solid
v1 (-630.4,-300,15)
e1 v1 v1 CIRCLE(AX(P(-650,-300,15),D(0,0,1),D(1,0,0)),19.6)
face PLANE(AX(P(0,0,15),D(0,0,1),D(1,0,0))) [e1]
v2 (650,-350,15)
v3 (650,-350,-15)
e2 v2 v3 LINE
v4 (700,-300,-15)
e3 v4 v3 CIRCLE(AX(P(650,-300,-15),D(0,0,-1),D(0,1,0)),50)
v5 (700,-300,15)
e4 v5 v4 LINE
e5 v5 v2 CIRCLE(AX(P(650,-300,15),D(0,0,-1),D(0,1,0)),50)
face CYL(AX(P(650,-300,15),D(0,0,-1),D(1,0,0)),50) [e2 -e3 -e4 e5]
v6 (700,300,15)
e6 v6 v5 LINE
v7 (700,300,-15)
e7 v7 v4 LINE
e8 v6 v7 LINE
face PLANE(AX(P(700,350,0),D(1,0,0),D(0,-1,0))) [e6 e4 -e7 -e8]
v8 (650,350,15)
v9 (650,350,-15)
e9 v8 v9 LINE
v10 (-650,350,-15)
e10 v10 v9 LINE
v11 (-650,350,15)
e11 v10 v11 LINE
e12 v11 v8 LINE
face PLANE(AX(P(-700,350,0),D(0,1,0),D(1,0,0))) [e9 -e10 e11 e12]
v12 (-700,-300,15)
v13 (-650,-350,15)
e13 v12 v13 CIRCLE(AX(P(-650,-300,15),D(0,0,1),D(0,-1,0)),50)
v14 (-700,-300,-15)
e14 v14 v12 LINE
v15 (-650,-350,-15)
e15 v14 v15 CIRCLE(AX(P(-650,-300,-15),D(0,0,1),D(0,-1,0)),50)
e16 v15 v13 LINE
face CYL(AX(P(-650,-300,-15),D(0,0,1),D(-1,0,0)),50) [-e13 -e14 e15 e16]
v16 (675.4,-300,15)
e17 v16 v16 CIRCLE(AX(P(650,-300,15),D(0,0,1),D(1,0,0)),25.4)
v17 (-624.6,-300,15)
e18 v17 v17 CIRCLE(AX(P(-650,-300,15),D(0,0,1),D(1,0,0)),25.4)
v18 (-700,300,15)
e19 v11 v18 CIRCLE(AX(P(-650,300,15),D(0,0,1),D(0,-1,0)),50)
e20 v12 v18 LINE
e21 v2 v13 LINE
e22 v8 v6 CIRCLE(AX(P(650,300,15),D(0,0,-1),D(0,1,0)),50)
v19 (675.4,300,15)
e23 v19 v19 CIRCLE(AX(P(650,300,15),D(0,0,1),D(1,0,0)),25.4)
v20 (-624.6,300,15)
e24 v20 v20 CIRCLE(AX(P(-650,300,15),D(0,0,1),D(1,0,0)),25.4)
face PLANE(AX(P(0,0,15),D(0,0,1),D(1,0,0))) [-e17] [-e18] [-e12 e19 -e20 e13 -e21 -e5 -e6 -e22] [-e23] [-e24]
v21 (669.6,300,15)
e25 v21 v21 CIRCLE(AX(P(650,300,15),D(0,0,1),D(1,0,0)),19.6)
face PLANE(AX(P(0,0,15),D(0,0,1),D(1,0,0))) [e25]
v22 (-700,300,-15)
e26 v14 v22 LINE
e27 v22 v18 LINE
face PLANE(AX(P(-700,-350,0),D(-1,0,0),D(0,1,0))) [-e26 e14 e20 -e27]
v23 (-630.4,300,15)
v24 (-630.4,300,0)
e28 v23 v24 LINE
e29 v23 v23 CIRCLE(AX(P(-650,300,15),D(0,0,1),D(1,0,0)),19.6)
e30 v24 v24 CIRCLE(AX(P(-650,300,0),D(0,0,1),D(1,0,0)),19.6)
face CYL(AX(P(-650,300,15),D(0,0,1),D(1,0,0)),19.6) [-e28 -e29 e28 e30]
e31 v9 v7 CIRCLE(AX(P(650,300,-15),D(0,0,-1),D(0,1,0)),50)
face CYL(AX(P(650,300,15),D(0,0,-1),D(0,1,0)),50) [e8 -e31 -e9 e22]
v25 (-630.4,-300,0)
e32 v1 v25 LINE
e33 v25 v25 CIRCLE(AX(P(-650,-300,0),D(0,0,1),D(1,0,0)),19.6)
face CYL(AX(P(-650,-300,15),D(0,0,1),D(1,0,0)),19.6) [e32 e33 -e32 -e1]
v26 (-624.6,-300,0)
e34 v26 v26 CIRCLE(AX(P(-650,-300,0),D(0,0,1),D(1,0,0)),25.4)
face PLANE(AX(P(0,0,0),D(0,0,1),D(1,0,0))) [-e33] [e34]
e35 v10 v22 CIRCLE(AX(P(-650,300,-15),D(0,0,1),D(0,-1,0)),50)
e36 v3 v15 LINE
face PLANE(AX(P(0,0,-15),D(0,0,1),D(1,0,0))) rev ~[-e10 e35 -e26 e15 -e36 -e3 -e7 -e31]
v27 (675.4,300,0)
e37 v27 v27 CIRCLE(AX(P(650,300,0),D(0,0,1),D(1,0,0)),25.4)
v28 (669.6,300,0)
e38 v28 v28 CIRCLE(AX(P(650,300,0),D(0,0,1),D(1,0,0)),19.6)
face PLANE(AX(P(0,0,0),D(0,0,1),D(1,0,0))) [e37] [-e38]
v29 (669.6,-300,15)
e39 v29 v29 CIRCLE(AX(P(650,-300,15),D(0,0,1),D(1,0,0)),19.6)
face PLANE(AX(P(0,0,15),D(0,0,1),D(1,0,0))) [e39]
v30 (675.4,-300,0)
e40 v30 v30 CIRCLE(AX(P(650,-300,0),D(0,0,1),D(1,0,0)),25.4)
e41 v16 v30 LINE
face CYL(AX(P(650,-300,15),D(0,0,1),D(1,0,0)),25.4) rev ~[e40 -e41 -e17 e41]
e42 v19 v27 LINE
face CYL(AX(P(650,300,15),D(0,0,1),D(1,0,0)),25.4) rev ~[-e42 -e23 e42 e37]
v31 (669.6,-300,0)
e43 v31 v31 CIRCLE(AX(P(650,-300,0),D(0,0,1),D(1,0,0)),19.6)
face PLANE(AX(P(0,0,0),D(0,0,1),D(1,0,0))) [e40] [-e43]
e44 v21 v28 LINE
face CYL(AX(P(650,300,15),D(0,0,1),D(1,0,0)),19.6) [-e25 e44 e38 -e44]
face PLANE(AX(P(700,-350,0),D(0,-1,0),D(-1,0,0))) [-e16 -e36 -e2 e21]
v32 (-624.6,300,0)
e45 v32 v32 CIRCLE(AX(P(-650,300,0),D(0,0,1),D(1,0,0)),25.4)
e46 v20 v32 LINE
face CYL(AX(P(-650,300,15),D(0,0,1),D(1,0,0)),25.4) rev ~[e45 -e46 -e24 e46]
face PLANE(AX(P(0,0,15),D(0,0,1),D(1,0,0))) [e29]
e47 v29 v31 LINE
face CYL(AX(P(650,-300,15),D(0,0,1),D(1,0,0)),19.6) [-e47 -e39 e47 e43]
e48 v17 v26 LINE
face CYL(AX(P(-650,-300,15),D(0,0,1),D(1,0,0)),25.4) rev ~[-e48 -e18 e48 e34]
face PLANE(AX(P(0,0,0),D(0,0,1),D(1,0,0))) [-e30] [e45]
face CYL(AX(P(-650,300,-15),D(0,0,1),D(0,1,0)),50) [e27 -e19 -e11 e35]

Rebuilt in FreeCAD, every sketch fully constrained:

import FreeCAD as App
import Part
import Sketcher


def edges_at(feature, points):
    """Names of the edges that pass closest to the given points."""
    edges = feature.Shape.Edges
    near = lambda p: min(range(len(edges)), key=lambda i: edges[i].distToShape(Part.Vertex(*p))[0])
    return sorted({f"Edge{near(p) + 1}" for p in points})

doc = App.newDocument("Part")
body = doc.addObject("PartDesign::Body", "Body")

# Sketch on XY plane
sketch1 = doc.addObject("Sketcher::SketchObject", "Sketch")
body.addObject(sketch1)
sketch1.AttachmentSupport = (doc.XY_Plane, [""])
sketch1.MapMode = "FlatFace"
sketch1.addGeometry(Part.LineSegment(App.Vector(700, 350, 0), App.Vector(-700, 350, 0)), False)
sketch1.addGeometry(Part.LineSegment(App.Vector(-700, 350, 0), App.Vector(-700, -350, 0)), False)
sketch1.addGeometry(Part.LineSegment(App.Vector(-700, -350, 0), App.Vector(700, -350, 0)), False)
sketch1.addGeometry(Part.LineSegment(App.Vector(700, -350, 0), App.Vector(700, 350, 0)), False)
sketch1.addConstraint(Sketcher.Constraint("Coincident", 0, 2, 1, 1))
sketch1.addConstraint(Sketcher.Constraint("Coincident", 1, 2, 2, 1))
sketch1.addConstraint(Sketcher.Constraint("Coincident", 2, 2, 3, 1))
sketch1.addConstraint(Sketcher.Constraint("Coincident", 3, 2, 0, 1))
sketch1.addConstraint(Sketcher.Constraint("Horizontal", 0))
sketch1.addConstraint(Sketcher.Constraint("Vertical", 1))
sketch1.addConstraint(Sketcher.Constraint("Horizontal", 2))
sketch1.addConstraint(Sketcher.Constraint("Vertical", 3))
sketch1.addConstraint(Sketcher.Constraint("Symmetric", 0, 2, 2, 2, -1, 1))
sketch1.addConstraint(Sketcher.Constraint("DistanceX", 0, 2, 0, 1, 1400.0))
sketch1.addConstraint(Sketcher.Constraint("DistanceY", 1, 2, 1, 1, 700.0))
pad1 = doc.addObject("PartDesign::Pad", "Pad")
body.addObject(pad1)
pad1.Profile = sketch1
pad1.Length = 30
pad1.Midplane = True
doc.recompute()

fillet = doc.addObject("PartDesign::Fillet", "Fillet")
body.addObject(fillet)
fillet.Base = (pad1, edges_at(pad1, [
    (700, 350, 0),
    (-700, 350, 0),
    (700, -350, 0),
    (-700, -350, 0),
]))
fillet.Radius = 50

# Sketch on XY plane
sketch2 = doc.addObject("Sketcher::SketchObject", "Sketch001")
body.addObject(sketch2)
sketch2.AttachmentSupport = (doc.XY_Plane, [""])
sketch2.MapMode = "FlatFace"
sketch2.AttachmentOffset = App.Placement(App.Vector(0, 0, 15), App.Rotation())
sketch2.addGeometry(Part.Circle(App.Vector(650, -300, 0), App.Vector(0, 0, 1), 25), False)
sketch2.addGeometry(Part.Circle(App.Vector(650, -300, 0), App.Vector(0, 0, 1), 20), False)
sketch2.addGeometry(Part.Circle(App.Vector(650, 300, 0), App.Vector(0, 0, 1), 25), False)
sketch2.addGeometry(Part.Circle(App.Vector(650, 300, 0), App.Vector(0, 0, 1), 20), False)
sketch2.addGeometry(Part.Circle(App.Vector(-650, -300, 0), App.Vector(0, 0, 1), 25), False)
sketch2.addGeometry(Part.Circle(App.Vector(-650, -300, 0), App.Vector(0, 0, 1), 20), False)
sketch2.addGeometry(Part.Circle(App.Vector(-650, 300, 0), App.Vector(0, 0, 1), 25), False)
sketch2.addGeometry(Part.Circle(App.Vector(-650, 300, 0), App.Vector(0, 0, 1), 20), False)
sketch2.addConstraint(Sketcher.Constraint("Coincident", 1, 3, 0, 3))
sketch2.addConstraint(Sketcher.Constraint("Coincident", 3, 3, 2, 3))
sketch2.addConstraint(Sketcher.Constraint("Coincident", 5, 3, 4, 3))
sketch2.addConstraint(Sketcher.Constraint("Coincident", 7, 3, 6, 3))
sketch2.addConstraint(Sketcher.Constraint("Equal", 0, 2))
sketch2.addConstraint(Sketcher.Constraint("Equal", 1, 3))
sketch2.addConstraint(Sketcher.Constraint("Equal", 2, 4))
sketch2.addConstraint(Sketcher.Constraint("Equal", 3, 5))
sketch2.addConstraint(Sketcher.Constraint("Equal", 4, 6))
sketch2.addConstraint(Sketcher.Constraint("Equal", 5, 7))
sketch2.addConstraint(Sketcher.Constraint("Symmetric", 2, 3, 4, 3, -1, 1))
sketch2.addConstraint(Sketcher.Constraint("Symmetric", 0, 3, 6, 3, -1, 1))
sketch2.addConstraint(Sketcher.Constraint("Symmetric", 0, 3, 4, 3, -2))
sketch2.addConstraint(Sketcher.Constraint("Diameter", 0, 50.8))
sketch2.addConstraint(Sketcher.Constraint("DistanceX", -1, 1, 0, 3, 650.0))
sketch2.addConstraint(Sketcher.Constraint("DistanceY", 0, 3, -1, 1, 300.0))
sketch2.addConstraint(Sketcher.Constraint("Diameter", 1, 39.2))
pocket1 = doc.addObject("PartDesign::Pocket", "Pocket")
body.addObject(pocket1)
pocket1.Profile = sketch2
pocket1.Length = 15

doc.recompute()
